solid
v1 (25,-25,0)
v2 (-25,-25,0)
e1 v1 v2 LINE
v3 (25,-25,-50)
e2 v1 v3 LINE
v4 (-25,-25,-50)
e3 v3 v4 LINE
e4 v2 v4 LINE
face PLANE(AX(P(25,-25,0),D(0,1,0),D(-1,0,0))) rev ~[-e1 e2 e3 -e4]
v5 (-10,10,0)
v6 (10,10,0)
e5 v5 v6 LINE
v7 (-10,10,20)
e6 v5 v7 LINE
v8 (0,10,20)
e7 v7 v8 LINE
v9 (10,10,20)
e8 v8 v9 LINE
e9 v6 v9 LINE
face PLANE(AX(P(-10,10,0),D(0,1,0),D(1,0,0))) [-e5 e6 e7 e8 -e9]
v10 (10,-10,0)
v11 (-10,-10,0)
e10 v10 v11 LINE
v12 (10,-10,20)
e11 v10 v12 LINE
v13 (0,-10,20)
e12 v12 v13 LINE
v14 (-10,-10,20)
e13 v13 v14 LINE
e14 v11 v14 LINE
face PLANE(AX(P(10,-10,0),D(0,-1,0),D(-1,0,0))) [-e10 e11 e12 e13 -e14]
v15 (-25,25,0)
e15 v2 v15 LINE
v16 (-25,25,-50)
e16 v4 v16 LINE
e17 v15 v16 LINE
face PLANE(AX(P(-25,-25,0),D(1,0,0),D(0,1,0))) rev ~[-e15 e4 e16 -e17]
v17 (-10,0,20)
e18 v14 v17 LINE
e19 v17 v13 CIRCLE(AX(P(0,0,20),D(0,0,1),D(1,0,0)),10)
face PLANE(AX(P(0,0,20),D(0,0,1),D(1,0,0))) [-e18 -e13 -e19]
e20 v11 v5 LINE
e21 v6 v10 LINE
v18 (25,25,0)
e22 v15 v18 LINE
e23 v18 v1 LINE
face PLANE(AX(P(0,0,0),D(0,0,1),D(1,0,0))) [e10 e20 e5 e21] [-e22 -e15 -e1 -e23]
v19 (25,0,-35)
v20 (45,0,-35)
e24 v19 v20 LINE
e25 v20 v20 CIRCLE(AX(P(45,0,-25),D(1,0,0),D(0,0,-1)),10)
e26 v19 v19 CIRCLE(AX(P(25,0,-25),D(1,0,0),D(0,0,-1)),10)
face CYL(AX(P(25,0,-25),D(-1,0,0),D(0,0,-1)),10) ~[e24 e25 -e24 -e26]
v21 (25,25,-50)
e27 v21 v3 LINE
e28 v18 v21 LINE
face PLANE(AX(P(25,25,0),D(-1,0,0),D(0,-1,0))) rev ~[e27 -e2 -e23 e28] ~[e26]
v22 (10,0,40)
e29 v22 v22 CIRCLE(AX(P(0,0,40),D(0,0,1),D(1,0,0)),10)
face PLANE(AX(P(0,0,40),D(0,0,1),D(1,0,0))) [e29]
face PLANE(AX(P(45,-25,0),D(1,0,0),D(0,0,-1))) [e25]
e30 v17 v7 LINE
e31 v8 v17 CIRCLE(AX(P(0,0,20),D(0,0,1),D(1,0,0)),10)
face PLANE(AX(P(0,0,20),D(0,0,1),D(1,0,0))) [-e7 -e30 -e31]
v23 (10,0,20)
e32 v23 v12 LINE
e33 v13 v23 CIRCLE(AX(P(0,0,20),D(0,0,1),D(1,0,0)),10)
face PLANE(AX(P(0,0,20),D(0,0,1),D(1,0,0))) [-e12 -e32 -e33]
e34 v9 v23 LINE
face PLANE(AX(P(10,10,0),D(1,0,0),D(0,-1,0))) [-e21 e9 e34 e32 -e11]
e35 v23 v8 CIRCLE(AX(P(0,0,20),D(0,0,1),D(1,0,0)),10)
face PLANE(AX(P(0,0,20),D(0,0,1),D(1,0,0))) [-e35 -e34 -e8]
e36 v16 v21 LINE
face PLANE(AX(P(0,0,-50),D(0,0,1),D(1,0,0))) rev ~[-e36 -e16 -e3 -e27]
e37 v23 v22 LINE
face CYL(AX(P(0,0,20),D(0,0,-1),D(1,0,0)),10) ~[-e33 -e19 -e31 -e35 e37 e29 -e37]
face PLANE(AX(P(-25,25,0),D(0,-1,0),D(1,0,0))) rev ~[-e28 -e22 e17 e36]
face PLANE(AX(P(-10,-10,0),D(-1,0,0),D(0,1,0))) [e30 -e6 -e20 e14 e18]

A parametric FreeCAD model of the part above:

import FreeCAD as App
import Part
import Sketcher
from FreeCAD import Vector


def add_polygon(sketch, points):
    """Adds a closed chain of lines whose ends are joined by coincident constraints."""
    first, n = sketch.GeometryCount, len(points)
    for a, b in zip(points, points[1:] + points[:1]):
        sketch.addGeometry(Part.LineSegment(App.Vector(*a, 0), App.Vector(*b, 0)), False)
    for i in range(n):
        sketch.addConstraint(Sketcher.Constraint("Coincident", first + i, 2, first + (i + 1) % n, 1))

doc = App.newDocument("Part")
body = doc.addObject("PartDesign::Body", "Body")

sketch1 = doc.addObject("Sketcher::SketchObject", "Sketch")
body.addObject(sketch1)
sketch1.AttachmentSupport = (doc.XY_Plane, [""])
sketch1.MapMode = "FlatFace"
add_polygon(sketch1, [(25, 25), (-25, 25), (-25, -25), (25, -25)])
sketch1.addConstraint(Sketcher.Constraint("Horizontal", 0))
sketch1.addConstraint(Sketcher.Constraint("Vertical", 1))
sketch1.addConstraint(Sketcher.Constraint("Horizontal", 2))
sketch1.addConstraint(Sketcher.Constraint("Vertical", 3))
sketch1.addConstraint(Sketcher.Constraint("Symmetric", 0, 2, 2, 2, -1, 1))
sketch1.addConstraint(Sketcher.Constraint("Equal", 2, 1))
sketch1.addConstraint(Sketcher.Constraint("DistanceX", 0, 2, 0, 1, 50.0))
pad1 = doc.addObject("PartDesign::Pad", "Pad")
body.addObject(pad1)
pad1.Profile = sketch1
pad1.Length = 50
pad1.Reversed = True

sketch2 = doc.addObject("Sketcher::SketchObject", "Sketch001")
body.addObject(sketch2)
sketch2.AttachmentSupport = (doc.XY_Plane, [""])
sketch2.MapMode = "FlatFace"
add_polygon(sketch2, [(10, 10), (-10, 10), (-10, -10), (10, -10)])
sketch2.addConstraint(Sketcher.Constraint("Horizontal", 0))
sketch2.addConstraint(Sketcher.Constraint("Vertical", 1))
sketch2.addConstraint(Sketcher.Constraint("Horizontal", 2))
sketch2.addConstraint(Sketcher.Constraint("Vertical", 3))
sketch2.addConstraint(Sketcher.Constraint("Symmetric", 0, 2, 2, 2, -1, 1))
sketch2.addConstraint(Sketcher.Constraint("Equal", 2, 1))
sketch2.addConstraint(Sketcher.Constraint("DistanceX", 0, 2, 0, 1, 20.0))
pad2 = doc.addObject("PartDesign::Pad", "Pad001")
body.addObject(pad2)
pad2.Profile = sketch2
pad2.Length = 20

sketch3 = doc.addObject("Sketcher::SketchObject", "Sketch002")
body.addObject(sketch3)
sketch3.AttachmentSupport = (doc.XY_Plane, [""])
sketch3.MapMode = "FlatFace"
sketch3.AttachmentOffset = App.Placement(Vector(0, 0, 20), App.Rotation())
sketch3.addGeometry(Part.Circle(Vector(0, 0, 0), Vector(0, 0, 1), 10), False)
sketch3.addConstraint(Sketcher.Constraint("Coincident", 0, 3, -1, 1))
sketch3.addConstraint(Sketcher.Constraint("Diameter", 0, 20.0))
pad3 = doc.addObject("PartDesign::Pad", "Pad002")
body.addObject(pad3)
pad3.Profile = sketch3
pad3.Length = 20

sketch4 = doc.addObject("Sketcher::SketchObject", "Sketch003")
body.addObject(sketch4)
sketch4.AttachmentSupport = (doc.YZ_Plane, [""])
sketch4.MapMode = "FlatFace"
sketch4.AttachmentOffset = App.Placement(Vector(0, 0, 25), App.Rotation())
sketch4.addGeometry(Part.Circle(Vector(0, -25, 0), Vector(0, 0, 1), 10), False)
sketch4.addConstraint(Sketcher.Constraint("PointOnObject", 0, 3, -2))
sketch4.addConstraint(Sketcher.Constraint("Diameter", 0, 20.0))
sketch4.addConstraint(Sketcher.Constraint("DistanceY", 0, 3, -1, 1, 25.0))
pad4 = doc.addObject("PartDesign::Pad", "Pad003")
body.addObject(pad4)
pad4.Profile = sketch4
pad4.Length = 20

doc.recompute()
